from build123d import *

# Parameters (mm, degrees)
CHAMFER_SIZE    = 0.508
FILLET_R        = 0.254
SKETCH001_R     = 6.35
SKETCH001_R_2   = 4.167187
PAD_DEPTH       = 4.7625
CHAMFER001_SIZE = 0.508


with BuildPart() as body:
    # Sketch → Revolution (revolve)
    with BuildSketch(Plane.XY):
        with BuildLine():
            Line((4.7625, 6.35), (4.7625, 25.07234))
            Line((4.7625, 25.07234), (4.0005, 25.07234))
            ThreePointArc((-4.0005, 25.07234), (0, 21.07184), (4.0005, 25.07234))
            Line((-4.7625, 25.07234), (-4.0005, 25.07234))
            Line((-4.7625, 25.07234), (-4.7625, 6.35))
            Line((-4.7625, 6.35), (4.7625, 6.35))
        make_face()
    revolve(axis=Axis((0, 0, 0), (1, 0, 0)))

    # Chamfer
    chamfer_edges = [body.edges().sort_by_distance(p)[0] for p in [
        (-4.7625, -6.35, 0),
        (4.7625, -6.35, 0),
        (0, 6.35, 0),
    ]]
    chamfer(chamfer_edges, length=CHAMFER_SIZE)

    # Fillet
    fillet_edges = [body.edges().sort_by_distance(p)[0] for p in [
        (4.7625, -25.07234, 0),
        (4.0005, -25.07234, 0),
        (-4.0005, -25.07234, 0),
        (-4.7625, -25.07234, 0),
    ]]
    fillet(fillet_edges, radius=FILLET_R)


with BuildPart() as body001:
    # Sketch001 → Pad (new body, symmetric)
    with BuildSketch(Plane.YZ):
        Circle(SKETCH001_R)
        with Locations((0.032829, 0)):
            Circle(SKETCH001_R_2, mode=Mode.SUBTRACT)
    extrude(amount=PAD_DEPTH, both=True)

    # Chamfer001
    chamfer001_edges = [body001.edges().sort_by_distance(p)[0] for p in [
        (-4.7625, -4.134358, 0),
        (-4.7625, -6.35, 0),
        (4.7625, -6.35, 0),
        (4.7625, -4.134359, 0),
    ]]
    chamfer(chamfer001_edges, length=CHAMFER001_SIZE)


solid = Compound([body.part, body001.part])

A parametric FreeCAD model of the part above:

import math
import FreeCAD as App
import Part
import Sketcher

V = App.Vector
Q = App.Units.Quantity


def edges_at(feature, points):
    """Names of the edges that pass closest to the given points."""
    edges = feature.Shape.Edges
    near = lambda p: min(range(len(edges)), key=lambda i: edges[i].distToShape(Part.Vertex(*p))[0])
    return sorted({f"Edge{near(p) + 1}" for p in points})

doc = App.newDocument("Part")
params = doc.addObject("Spreadsheet::Sheet", "Params")
for row, (alias, value) in enumerate([
    ("sketch1_width", "0.03 in"),
    ("revolution_angle", "360 deg"),
    ("chamfer_size", "0.02 in"),
    ("fillet_radius", "0.01 in"),
    ("sketch2_diameter", "0.5 in"),
    ("sketch2_diameter2", "0.328125 in"),
    ("pad1_length", "0.375 in"),
    ("chamfer2_size", "0.02 in"),
], start=1):
    params.set(f"A{row}", alias)
    params.set(f"B{row}", "=" + value)
    params.setAlias(f"B{row}", alias)

body = doc.addObject("PartDesign::Body", "Body")

sketch1 = body.newObject("Sketcher::SketchObject", "Sketch")
sketch1.AttachmentSupport = (doc.getObject("XY_Plane"), [""])
sketch1.MapMode = "FlatFace"
sketch1.addGeometry(Part.LineSegment(V(4.8, 6.3, 0), V(4.8, 25.1, 0)), False)
sketch1.addGeometry(Part.LineSegment(V(4.8, 25.1, 0), V(4, 25.1, 0)), False)
sketch1.addGeometry(Part.ArcOfCircle(Part.Circle(V(0, 25.1, 0), V(0, 0, 1), 4), math.radians(180), math.radians(360)), False)
sketch1.addGeometry(Part.LineSegment(V(-4, 25.1, 0), V(-4.8, 25.1, 0)), False)
sketch1.addGeometry(Part.LineSegment(V(-4.8, 25.1, 0), V(-4.8, 6.3, 0)), False)
sketch1.addGeometry(Part.LineSegment(V(-4.8, 6.3, 0), V(4.8, 6.3, 0)), False)
sketch1.addConstraint(Sketcher.Constraint("Coincident", 0, 2, 1, 1))
sketch1.addConstraint(Sketcher.Constraint("Coincident", 1, 2, 2, 2))
sketch1.addConstraint(Sketcher.Constraint("Coincident", 2, 1, 3, 1))
sketch1.addConstraint(Sketcher.Constraint("Coincident", 3, 2, 4, 1))
sketch1.addConstraint(Sketcher.Constraint("Coincident", 4, 2, 5, 1))
sketch1.addConstraint(Sketcher.Constraint("Coincident", 5, 2, 0, 1))
sketch1.addConstraint(Sketcher.Constraint("Vertical", 0))
sketch1.addConstraint(Sketcher.Constraint("Horizontal", 1))
sketch1.addConstraint(Sketcher.Constraint("Horizontal", 3))
sketch1.addConstraint(Sketcher.Constraint("Vertical", 4))
sketch1.addConstraint(Sketcher.Constraint("Horizontal", 5))
sketch1.addConstraint(Sketcher.Constraint("Symmetric", 1, 2, 2, 1, -2))
sketch1.addConstraint(Sketcher.Constraint("Horizontal", 2, 3, 0, 2))
sketch1.addConstraint(Sketcher.Constraint("Equal", 1, 3))
sketch1.addConstraint(Sketcher.Constraint("DistanceX", 1, 2, 1, 1, Q("0.03 in")))
sketch1.addConstraint(Sketcher.Constraint("Radius", 2, Q("0.1575 in")))
sketch1.addConstraint(Sketcher.Constraint("DistanceY", -1, 1, 4, 2, Q("0.25 in")))
sketch1.addConstraint(Sketcher.Constraint("DistanceY", 0, 1, 0, 2, Q("0.7371 in")))
sketch1.setExpression("Constraints[14]", "Params.sketch1_width")
revolution = body.newObject("PartDesign::Revolution", "Revolution")
revolution.Profile = sketch1
revolution.ReferenceAxis = (sketch1, ["H_Axis"])
revolution.setExpression("Angle", "Params.revolution_angle")
doc.recompute()

chamfer = body.newObject("PartDesign::Chamfer", "Chamfer")
chamfer.Base = (revolution, edges_at(revolution, [(-4.763, -6.35, 0), (4.763, -6.35, 0), (0, 6.35, 0)]))
chamfer.setExpression("Size", "Params.chamfer_size")
doc.recompute()

fillet = body.newObject("PartDesign::Fillet", "Fillet")
fillet.Base = (chamfer, edges_at(chamfer, [
    (4.763, -25.072, 0),
    (4, -25.072, 0),
    (-4, -25.072, 0),
    (-4.763, -25.072, 0),
]))
fillet.setExpression("Radius", "Params.fillet_radius")
body2 = doc.addObject("PartDesign::Body", "Body001")

sketch2 = body2.newObject("Sketcher::SketchObject", "Sketch001")
sketch2.AttachmentSupport = (doc.getObject("YZ_Plane001"), [""])
sketch2.MapMode = "FlatFace"
sketch2.addGeometry(Part.Circle(V(0, 0, 0), V(0, 0, 1), 6.3), False)
sketch2.addGeometry(Part.Circle(V(0, 0, 0), V(0, 0, 1), 4.2), False)
sketch2.addConstraint(Sketcher.Constraint("Coincident", 0, 3, -1, 1))
sketch2.addConstraint(Sketcher.Constraint("PointOnObject", 1, 3, -1))
sketch2.addConstraint(Sketcher.Constraint("Diameter", 0, Q("0.5 in")))
sketch2.addConstraint(Sketcher.Constraint("Diameter", 1, Q("0.328125 in")))
sketch2.addConstraint(Sketcher.Constraint("DistanceX", -1, 1, 1, 3, Q("0.032829 mm")))
sketch2.setExpression("Constraints[2]", "Params.sketch2_diameter")
sketch2.setExpression("Constraints[3]", "Params.sketch2_diameter2")
pad1 = body2.newObject("PartDesign::Pad", "Pad")
pad1.Profile = sketch2
pad1.setExpression("Length", "Params.pad1_length")
pad1.Midplane = True
doc.recompute()

chamfer2 = body2.newObject("PartDesign::Chamfer", "Chamfer001")
chamfer2.Base = (pad1, edges_at(pad1, [
    (-4.763, -4.134, 0),
    (-4.763, -6.35, 0),
    (4.763, -6.35, 0),
    (4.763, -4.134, 0),
]))
chamfer2.setExpression("Size", "Params.chamfer2_size")

doc.recompute()
